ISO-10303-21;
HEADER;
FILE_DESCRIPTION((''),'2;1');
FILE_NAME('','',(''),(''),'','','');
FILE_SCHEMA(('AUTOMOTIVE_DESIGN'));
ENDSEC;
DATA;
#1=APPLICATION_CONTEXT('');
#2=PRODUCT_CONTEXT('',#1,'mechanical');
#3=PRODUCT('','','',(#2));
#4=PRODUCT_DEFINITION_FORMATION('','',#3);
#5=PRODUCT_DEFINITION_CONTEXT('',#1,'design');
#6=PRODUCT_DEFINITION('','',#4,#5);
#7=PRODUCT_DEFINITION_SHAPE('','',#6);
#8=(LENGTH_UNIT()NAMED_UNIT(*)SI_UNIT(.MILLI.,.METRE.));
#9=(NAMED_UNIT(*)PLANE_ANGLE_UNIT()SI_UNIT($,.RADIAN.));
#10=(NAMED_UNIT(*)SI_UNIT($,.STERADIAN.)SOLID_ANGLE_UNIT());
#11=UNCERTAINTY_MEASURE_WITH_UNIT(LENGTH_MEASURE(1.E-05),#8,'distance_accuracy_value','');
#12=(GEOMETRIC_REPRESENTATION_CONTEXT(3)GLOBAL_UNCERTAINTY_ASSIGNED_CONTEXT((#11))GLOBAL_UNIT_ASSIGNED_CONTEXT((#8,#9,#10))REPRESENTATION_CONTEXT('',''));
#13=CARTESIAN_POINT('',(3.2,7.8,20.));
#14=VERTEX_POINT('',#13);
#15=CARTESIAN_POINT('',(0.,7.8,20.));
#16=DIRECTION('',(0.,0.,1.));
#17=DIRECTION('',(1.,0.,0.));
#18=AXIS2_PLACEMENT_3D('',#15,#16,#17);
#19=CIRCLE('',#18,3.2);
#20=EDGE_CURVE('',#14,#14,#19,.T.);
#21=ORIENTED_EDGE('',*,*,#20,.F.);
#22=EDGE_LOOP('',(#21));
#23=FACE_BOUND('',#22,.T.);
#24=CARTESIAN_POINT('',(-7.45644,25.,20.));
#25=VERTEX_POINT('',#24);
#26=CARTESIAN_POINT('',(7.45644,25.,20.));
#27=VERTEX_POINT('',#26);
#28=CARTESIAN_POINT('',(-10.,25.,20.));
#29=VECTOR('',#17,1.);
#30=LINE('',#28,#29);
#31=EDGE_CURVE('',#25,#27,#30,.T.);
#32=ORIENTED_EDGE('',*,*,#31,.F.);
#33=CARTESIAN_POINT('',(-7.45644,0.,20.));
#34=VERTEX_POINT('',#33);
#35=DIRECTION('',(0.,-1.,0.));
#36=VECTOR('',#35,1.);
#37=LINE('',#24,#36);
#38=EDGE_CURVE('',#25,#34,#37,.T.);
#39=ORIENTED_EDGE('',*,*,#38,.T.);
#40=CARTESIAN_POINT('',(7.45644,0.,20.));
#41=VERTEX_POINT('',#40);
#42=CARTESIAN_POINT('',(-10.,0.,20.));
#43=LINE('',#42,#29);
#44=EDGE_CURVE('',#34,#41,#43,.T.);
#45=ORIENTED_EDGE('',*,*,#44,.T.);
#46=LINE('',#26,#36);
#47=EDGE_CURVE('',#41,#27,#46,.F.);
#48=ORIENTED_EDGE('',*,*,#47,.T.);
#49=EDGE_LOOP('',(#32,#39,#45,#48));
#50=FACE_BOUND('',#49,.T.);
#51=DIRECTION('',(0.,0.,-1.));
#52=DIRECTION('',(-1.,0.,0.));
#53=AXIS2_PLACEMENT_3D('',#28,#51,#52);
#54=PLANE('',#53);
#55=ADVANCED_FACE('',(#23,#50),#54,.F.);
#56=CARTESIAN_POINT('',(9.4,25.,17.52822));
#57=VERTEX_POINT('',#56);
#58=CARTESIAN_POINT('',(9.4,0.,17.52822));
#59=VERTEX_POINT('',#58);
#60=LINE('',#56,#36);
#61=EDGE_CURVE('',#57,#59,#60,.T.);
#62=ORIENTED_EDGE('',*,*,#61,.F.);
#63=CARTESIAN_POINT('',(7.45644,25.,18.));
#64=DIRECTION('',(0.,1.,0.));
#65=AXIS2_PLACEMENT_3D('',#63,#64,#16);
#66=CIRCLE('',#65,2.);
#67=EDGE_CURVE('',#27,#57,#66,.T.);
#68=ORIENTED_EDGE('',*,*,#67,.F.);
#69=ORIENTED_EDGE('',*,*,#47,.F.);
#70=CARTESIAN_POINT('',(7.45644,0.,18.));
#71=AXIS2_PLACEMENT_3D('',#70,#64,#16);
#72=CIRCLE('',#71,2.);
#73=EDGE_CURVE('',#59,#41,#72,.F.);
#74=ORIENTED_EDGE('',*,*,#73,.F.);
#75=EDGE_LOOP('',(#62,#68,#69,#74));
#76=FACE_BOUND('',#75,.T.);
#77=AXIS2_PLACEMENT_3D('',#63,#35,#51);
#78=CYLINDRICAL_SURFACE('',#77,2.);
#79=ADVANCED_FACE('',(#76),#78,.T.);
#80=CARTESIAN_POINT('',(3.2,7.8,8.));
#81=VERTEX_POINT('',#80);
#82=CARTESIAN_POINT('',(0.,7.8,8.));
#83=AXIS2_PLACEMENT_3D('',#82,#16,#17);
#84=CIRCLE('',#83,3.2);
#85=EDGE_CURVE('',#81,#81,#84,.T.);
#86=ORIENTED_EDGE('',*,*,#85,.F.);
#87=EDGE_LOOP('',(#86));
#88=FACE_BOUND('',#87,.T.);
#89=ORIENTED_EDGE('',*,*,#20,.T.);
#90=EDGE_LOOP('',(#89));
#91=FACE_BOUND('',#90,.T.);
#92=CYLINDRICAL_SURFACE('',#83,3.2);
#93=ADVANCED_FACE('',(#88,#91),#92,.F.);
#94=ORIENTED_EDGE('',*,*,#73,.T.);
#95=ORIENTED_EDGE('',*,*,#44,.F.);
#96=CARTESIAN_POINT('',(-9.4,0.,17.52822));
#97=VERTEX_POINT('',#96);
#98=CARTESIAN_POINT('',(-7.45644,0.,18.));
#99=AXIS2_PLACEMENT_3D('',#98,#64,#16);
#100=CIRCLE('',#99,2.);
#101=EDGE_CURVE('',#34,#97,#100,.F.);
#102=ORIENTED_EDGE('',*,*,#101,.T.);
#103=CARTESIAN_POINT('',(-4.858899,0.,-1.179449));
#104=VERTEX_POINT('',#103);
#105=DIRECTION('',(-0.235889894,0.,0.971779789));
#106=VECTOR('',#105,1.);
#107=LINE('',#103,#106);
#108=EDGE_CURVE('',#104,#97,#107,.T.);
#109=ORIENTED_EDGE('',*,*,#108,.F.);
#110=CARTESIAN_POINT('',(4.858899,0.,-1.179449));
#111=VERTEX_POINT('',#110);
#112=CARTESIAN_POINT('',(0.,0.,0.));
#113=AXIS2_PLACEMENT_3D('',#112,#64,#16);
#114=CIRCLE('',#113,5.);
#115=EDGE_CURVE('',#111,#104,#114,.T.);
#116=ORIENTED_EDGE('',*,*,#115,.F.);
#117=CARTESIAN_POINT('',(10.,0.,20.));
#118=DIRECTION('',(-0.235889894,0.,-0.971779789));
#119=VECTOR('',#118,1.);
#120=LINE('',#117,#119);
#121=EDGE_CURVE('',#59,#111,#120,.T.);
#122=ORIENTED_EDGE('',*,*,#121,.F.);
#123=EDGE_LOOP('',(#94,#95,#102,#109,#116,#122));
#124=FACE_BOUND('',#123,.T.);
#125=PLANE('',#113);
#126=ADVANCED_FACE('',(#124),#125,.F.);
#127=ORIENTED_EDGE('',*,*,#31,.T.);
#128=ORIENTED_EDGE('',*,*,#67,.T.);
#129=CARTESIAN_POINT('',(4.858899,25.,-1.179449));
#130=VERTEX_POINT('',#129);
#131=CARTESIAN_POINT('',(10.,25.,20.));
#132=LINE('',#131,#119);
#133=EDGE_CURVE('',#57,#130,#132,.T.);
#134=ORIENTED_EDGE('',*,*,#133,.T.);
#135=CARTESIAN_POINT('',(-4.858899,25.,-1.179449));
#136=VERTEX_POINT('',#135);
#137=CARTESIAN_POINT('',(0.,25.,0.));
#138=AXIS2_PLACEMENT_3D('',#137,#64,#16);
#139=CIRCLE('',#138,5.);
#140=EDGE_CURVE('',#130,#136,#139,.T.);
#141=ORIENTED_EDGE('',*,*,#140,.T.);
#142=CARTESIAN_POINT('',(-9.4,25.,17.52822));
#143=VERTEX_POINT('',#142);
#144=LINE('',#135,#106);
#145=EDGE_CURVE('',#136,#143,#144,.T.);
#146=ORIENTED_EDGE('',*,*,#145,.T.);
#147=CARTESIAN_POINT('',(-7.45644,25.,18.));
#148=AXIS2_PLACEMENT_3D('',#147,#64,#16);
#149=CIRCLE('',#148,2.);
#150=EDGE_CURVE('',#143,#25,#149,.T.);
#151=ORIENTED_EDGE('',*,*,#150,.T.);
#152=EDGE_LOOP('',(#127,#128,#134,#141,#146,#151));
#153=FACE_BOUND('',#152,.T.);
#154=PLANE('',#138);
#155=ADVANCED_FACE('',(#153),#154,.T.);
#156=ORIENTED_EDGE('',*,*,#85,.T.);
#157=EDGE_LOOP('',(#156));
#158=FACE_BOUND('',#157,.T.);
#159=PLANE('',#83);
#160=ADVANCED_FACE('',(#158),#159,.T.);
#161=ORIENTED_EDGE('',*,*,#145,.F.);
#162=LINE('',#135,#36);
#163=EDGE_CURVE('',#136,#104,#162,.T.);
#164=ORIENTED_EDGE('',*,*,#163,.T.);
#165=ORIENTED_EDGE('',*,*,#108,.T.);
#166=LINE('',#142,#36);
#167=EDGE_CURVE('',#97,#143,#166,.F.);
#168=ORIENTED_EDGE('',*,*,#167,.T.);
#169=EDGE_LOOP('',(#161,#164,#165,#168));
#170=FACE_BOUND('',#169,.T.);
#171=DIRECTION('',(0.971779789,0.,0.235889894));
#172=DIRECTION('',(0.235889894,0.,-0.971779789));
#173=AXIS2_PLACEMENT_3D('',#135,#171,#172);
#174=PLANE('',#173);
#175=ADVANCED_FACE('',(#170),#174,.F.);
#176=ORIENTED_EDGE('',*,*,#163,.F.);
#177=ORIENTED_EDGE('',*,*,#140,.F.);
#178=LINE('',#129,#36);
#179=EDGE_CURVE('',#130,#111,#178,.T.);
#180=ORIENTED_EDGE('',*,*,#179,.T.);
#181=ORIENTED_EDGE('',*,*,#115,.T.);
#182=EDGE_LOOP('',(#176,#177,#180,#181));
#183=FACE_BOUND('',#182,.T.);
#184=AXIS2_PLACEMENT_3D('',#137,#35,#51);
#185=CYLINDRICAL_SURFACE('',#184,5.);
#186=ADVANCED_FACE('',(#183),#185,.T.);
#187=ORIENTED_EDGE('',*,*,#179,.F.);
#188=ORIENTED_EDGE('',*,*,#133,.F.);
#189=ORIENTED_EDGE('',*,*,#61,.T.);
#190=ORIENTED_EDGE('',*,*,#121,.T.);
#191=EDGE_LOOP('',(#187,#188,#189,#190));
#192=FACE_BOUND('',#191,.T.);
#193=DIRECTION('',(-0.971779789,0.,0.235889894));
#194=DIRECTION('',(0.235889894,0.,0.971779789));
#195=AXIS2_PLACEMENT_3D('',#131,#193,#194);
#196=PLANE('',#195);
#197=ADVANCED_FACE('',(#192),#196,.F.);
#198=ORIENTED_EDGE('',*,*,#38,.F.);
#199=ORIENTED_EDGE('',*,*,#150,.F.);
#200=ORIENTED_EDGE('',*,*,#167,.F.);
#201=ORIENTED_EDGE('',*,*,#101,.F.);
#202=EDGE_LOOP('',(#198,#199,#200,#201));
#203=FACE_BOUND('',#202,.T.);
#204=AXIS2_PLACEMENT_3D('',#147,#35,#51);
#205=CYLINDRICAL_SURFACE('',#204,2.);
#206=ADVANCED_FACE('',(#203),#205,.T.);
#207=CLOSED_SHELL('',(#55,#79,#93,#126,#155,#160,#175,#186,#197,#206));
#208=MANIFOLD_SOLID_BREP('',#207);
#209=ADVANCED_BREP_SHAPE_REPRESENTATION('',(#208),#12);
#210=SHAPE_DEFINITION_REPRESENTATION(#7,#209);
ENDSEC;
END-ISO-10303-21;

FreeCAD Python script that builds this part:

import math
import FreeCAD as App
import Part
import Sketcher
from FreeCAD import Vector
Q = App.Units.Quantity


def edges_at(feature, points):
    """Names of the edges that pass closest to the given points."""
    edges = feature.Shape.Edges
    near = lambda p: min(range(len(edges)), key=lambda i: edges[i].distToShape(Part.Vertex(*p))[0])
    return sorted({f"Edge{near(p) + 1}" for p in points})

doc = App.newDocument("Part")
body = doc.addObject("PartDesign::Body", "Body")

# Sketch on XZ plane
sketch1 = body.newObject("Sketcher::SketchObject", "Sketch")
sketch1.AttachmentSupport = (doc.getObject("XZ_Plane"), [""])
sketch1.MapMode = "FlatFace"
sketch1.addGeometry([
    Part.LineSegment(Vector(-5, -1, 0), Vector(-10, 20, 0)),
    Part.LineSegment(Vector(-10, 20, 0), Vector(10, 20, 0)),
    Part.LineSegment(Vector(10, 20, 0), Vector(5, -1, 0)),
    Part.ArcOfCircle(Part.Circle(Vector(0, 0, 0), Vector(0, 0, 1), 5), math.radians(-166), math.radians(-14)),
], False)
sketch1.addConstraint([
    Sketcher.Constraint("Coincident", 0, 2, 1, 1),
    Sketcher.Constraint("Coincident", 1, 2, 2, 1),
    Sketcher.Constraint("Tangent", 2, 2, 3, 2),
    Sketcher.Constraint("Tangent", 3, 1, 0, 1),
    Sketcher.Constraint("Horizontal", 1),
    Sketcher.Constraint("Coincident", 3, 3, -1, 1),
    Sketcher.Constraint("Horizontal", 2, 2, 3, 1),
    Sketcher.Constraint("Radius", 3, Q("5 mm")),
    Sketcher.Constraint("DistanceX", 1, 1, 1, 2, Q("20 mm")),
    Sketcher.Constraint("DistanceY", -1, 1, 0, 2, Q("20 mm")),
])
pad1 = body.newObject("PartDesign::Pad", "Pad")
pad1.Profile = sketch1
pad1.Length = 25
pad1.Reversed = True

# Sketch on XY plane
sketch2 = body.newObject("Sketcher::SketchObject", "Sketch001")
sketch2.AttachmentSupport = (doc.getObject("XY_Plane"), [""])
sketch2.MapMode = "FlatFace"
sketch2.AttachmentOffset = App.Placement(Vector(0, 0, 20), App.Rotation())
sketch2.addGeometry(Part.Circle(Vector(0, 7.8, 0), Vector(0, 0, 1), 3.2), False)
sketch2.addConstraint([
    Sketcher.Constraint("PointOnObject", 0, 3, -2),
    Sketcher.Constraint("Diameter", 0, Q("6.4 mm")),
    Sketcher.Constraint("DistanceY", -1, 1, 0, 3, Q("7.8 mm")),
])
pocket1 = body.newObject("PartDesign::Pocket", "Pocket")
pocket1.Profile = sketch2
pocket1.Length = 12
doc.recompute()

fillet = body.newObject("PartDesign::Fillet", "Fillet")
fillet.Base = (pocket1, edges_at(pocket1, [(10, 12.5, 20), (-10, 12.5, 20)]))
fillet.Radius = 2

doc.recompute()
